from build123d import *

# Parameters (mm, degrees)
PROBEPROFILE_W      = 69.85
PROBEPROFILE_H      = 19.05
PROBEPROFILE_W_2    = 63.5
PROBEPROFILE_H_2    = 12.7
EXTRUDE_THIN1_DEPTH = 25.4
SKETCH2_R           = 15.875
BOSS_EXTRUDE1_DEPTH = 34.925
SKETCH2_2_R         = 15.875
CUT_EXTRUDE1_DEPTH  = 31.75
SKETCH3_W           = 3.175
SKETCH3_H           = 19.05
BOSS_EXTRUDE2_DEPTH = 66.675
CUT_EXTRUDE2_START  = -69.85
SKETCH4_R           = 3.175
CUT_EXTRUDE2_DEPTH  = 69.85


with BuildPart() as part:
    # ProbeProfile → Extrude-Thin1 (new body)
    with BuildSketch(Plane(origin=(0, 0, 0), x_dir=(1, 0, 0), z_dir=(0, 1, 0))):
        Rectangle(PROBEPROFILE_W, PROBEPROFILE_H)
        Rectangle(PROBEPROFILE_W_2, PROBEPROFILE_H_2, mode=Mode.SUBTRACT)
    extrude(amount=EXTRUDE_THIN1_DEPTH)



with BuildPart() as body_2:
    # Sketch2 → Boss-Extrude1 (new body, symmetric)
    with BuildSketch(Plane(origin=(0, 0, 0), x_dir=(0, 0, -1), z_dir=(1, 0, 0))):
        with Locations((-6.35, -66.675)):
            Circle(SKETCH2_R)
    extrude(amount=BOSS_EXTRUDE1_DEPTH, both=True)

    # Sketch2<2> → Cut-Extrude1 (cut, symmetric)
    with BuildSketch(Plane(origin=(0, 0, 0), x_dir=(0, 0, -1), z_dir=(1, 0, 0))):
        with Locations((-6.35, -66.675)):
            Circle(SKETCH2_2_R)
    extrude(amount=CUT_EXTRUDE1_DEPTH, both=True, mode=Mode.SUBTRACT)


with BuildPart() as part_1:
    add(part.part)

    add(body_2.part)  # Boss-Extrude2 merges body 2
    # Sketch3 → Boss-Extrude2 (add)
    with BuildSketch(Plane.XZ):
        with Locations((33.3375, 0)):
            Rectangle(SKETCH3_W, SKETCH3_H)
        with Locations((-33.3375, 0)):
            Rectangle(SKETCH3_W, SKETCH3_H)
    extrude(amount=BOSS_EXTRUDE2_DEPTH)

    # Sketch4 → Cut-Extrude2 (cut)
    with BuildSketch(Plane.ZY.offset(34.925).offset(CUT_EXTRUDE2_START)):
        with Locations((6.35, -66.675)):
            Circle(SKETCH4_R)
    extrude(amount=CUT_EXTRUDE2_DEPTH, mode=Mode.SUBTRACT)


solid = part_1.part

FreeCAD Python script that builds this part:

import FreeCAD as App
import Part
import Sketcher

V = App.Vector
Q = App.Units.Quantity

doc = App.newDocument("Part")
params = doc.addObject("Spreadsheet::Sheet", "Params")
for row, (alias, value) in enumerate([
    ("sketch1_width", "2.5 in"),
    ("sketch1_height", "0.5 in"),
    ("sketch1_width2", "2.75 in"),
    ("sketch1_height2", "0.75 in"),
    ("pad1_length", "1 in"),
    ("sketch2_diameter", "1.25 in"),
    ("pad2_length", "2.75 in"),
    ("sketch3_diameter", "1.25 in"),
    ("pocket1_length", "2.5 in"),
    ("sketch4_height", "0.75 in"),
    ("sketch4_width", "0.125 in"),
    ("pad3_length", "2.625 in"),
    ("sketch5_diameter", "0.25 in"),
    ("pocket2_length", "2.75 in"),
], start=1):
    params.set(f"A{row}", alias)
    params.set(f"B{row}", "=" + value)
    params.setAlias(f"B{row}", alias)

body = doc.addObject("PartDesign::Body", "Body")

# Sketch on XZ plane
sketch1 = body.newObject("Sketcher::SketchObject", "Sketch")
sketch1.AttachmentSupport = (doc.getObject("XZ_Plane"), [""])
sketch1.MapMode = "FlatFace"
sketch1.addGeometry(Part.LineSegment(V(-35, -10, 0), V(-35, 10, 0)), False)
sketch1.addGeometry(Part.LineSegment(V(-35, 10, 0), V(35, 10, 0)), False)
sketch1.addGeometry(Part.LineSegment(V(35, 10, 0), V(35, -10, 0)), False)
sketch1.addGeometry(Part.LineSegment(V(35, -10, 0), V(-35, -10, 0)), False)
sketch1.addGeometry(Part.LineSegment(V(32, 6, 0), V(-32, 6, 0)), False)
sketch1.addGeometry(Part.LineSegment(V(-32, 6, 0), V(-32, -6, 0)), False)
sketch1.addGeometry(Part.LineSegment(V(-32, -6, 0), V(32, -6, 0)), False)
sketch1.addGeometry(Part.LineSegment(V(32, -6, 0), V(32, 6, 0)), False)
sketch1.addConstraint(Sketcher.Constraint("Coincident", 0, 2, 1, 1))
sketch1.addConstraint(Sketcher.Constraint("Coincident", 1, 2, 2, 1))
sketch1.addConstraint(Sketcher.Constraint("Coincident", 2, 2, 3, 1))
sketch1.addConstraint(Sketcher.Constraint("Coincident", 3, 2, 0, 1))
sketch1.addConstraint(Sketcher.Constraint("Coincident", 4, 2, 5, 1))
sketch1.addConstraint(Sketcher.Constraint("Coincident", 5, 2, 6, 1))
sketch1.addConstraint(Sketcher.Constraint("Coincident", 6, 2, 7, 1))
sketch1.addConstraint(Sketcher.Constraint("Coincident", 7, 2, 4, 1))
sketch1.addConstraint(Sketcher.Constraint("Vertical", 0))
sketch1.addConstraint(Sketcher.Constraint("Horizontal", 1))
sketch1.addConstraint(Sketcher.Constraint("Vertical", 2))
sketch1.addConstraint(Sketcher.Constraint("Horizontal", 3))
sketch1.addConstraint(Sketcher.Constraint("Horizontal", 4))
sketch1.addConstraint(Sketcher.Constraint("Vertical", 5))
sketch1.addConstraint(Sketcher.Constraint("Horizontal", 6))
sketch1.addConstraint(Sketcher.Constraint("Vertical", 7))
sketch1.addConstraint(Sketcher.Constraint("Symmetric", 0, 2, 2, 2, -1, 1))
sketch1.addConstraint(Sketcher.Constraint("Symmetric", 4, 2, 6, 2, -1, 1))
sketch1.addConstraint(Sketcher.Constraint("DistanceX", 4, 2, 4, 1, Q("2.5 in")))
sketch1.addConstraint(Sketcher.Constraint("DistanceY", 5, 2, 5, 1, Q("0.5 in")))
sketch1.addConstraint(Sketcher.Constraint("DistanceX", 1, 1, 1, 2, Q("2.75 in")))
sketch1.addConstraint(Sketcher.Constraint("DistanceY", 0, 1, 0, 2, Q("0.75 in")))
sketch1.setExpression("Constraints[18]", "Params.sketch1_width")
sketch1.setExpression("Constraints[19]", "Params.sketch1_height")
sketch1.setExpression("Constraints[20]", "Params.sketch1_width2")
sketch1.setExpression("Constraints[21]", "Params.sketch1_height2")
pad1 = body.newObject("PartDesign::Pad", "Pad")
pad1.Profile = sketch1
pad1.setExpression("Length", "Params.pad1_length")
pad1.Reversed = True
body2 = doc.addObject("PartDesign::Body", "Body001")
body2.AllowCompound = True

# Sketch on YZ plane
sketch2 = body2.newObject("Sketcher::SketchObject", "Sketch001")
sketch2.AttachmentSupport = (doc.getObject("YZ_Plane001"), [""])
sketch2.MapMode = "FlatFace"
sketch2.addGeometry(Part.Circle(V(-67, 6, 0), V(0, 0, 1), 16), False)
sketch2.addConstraint(Sketcher.Constraint("Diameter", 0, Q("1.25 in")))
sketch2.addConstraint(Sketcher.Constraint("DistanceY", -1, 1, 0, 3, Q("0.25 in")))
sketch2.addConstraint(Sketcher.Constraint("DistanceX", 0, 3, -1, 1, Q("2.625 in")))
sketch2.setExpression("Constraints[0]", "Params.sketch2_diameter")
pad2 = body2.newObject("PartDesign::Pad", "Pad001")
pad2.Profile = sketch2
pad2.setExpression("Length", "Params.pad2_length")
pad2.Midplane = True

# Sketch on YZ plane
sketch3 = body2.newObject("Sketcher::SketchObject", "Sketch002")
sketch3.AttachmentSupport = (doc.getObject("YZ_Plane001"), [""])
sketch3.MapMode = "FlatFace"
sketch3.addGeometry(Part.Circle(V(-67, 6, 0), V(0, 0, 1), 16), False)
sketch3.addConstraint(Sketcher.Constraint("Diameter", 0, Q("1.25 in")))
sketch3.addConstraint(Sketcher.Constraint("DistanceY", -1, 1, 0, 3, Q("0.25 in")))
sketch3.addConstraint(Sketcher.Constraint("DistanceX", 0, 3, -1, 1, Q("2.625 in")))
sketch3.setExpression("Constraints[0]", "Params.sketch3_diameter")
pocket1 = body2.newObject("PartDesign::Pocket", "Pocket")
pocket1.Profile = sketch3
pocket1.setExpression("Length", "Params.pocket1_length")
pocket1.Midplane = True
body.AllowCompound = True
doc.recompute()

boolean = body.newObject("PartDesign::Boolean", "Boolean")
boolean.Type = "Fuse"
boolean.addObjects([body2])

# Sketch on XZ plane
sketch4 = body.newObject("Sketcher::SketchObject", "Sketch003")
sketch4.AttachmentSupport = (doc.getObject("XZ_Plane"), [""])
sketch4.MapMode = "FlatFace"
sketch4.addGeometry(Part.LineSegment(V(31.8, 9.5, 0), V(31.8, -9.5, 0)), False)
sketch4.addGeometry(Part.LineSegment(V(31.8, -9.5, 0), V(34.9, -9.5, 0)), False)
sketch4.addGeometry(Part.LineSegment(V(34.9, -9.5, 0), V(34.9, 9.5, 0)), False)
sketch4.addGeometry(Part.LineSegment(V(34.9, 9.5, 0), V(31.8, 9.5, 0)), False)
sketch4.addGeometry(Part.LineSegment(V(-34.9, 9.5, 0), V(-34.9, -9.5, 0)), False)
sketch4.addGeometry(Part.LineSegment(V(-34.9, -9.5, 0), V(-31.8, -9.5, 0)), False)
sketch4.addGeometry(Part.LineSegment(V(-31.8, -9.5, 0), V(-31.8, 9.5, 0)), False)
sketch4.addGeometry(Part.LineSegment(V(-31.8, 9.5, 0), V(-34.9, 9.5, 0)), False)
sketch4.addConstraint(Sketcher.Constraint("Coincident", 0, 2, 1, 1))
sketch4.addConstraint(Sketcher.Constraint("Coincident", 1, 2, 2, 1))
sketch4.addConstraint(Sketcher.Constraint("Coincident", 2, 2, 3, 1))
sketch4.addConstraint(Sketcher.Constraint("Coincident", 3, 2, 0, 1))
sketch4.addConstraint(Sketcher.Constraint("Coincident", 4, 2, 5, 1))
sketch4.addConstraint(Sketcher.Constraint("Coincident", 5, 2, 6, 1))
sketch4.addConstraint(Sketcher.Constraint("Coincident", 6, 2, 7, 1))
sketch4.addConstraint(Sketcher.Constraint("Coincident", 7, 2, 4, 1))
sketch4.addConstraint(Sketcher.Constraint("Vertical", 0))
sketch4.addConstraint(Sketcher.Constraint("Horizontal", 1))
sketch4.addConstraint(Sketcher.Constraint("Vertical", 2))
sketch4.addConstraint(Sketcher.Constraint("Horizontal", 3))
sketch4.addConstraint(Sketcher.Constraint("Vertical", 4))
sketch4.addConstraint(Sketcher.Constraint("Horizontal", 5))
sketch4.addConstraint(Sketcher.Constraint("Vertical", 6))
sketch4.addConstraint(Sketcher.Constraint("Horizontal", 7))
sketch4.addConstraint(Sketcher.Constraint("Symmetric", 2, 2, 4, 2, -1, 1))
sketch4.addConstraint(Sketcher.Constraint("Symmetric", 0, 2, 6, 2, -1, 1))
sketch4.addConstraint(Sketcher.Constraint("Horizontal", 1, 2, 4, 2))
sketch4.addConstraint(Sketcher.Constraint("DistanceY", 0, 2, 0, 1, Q("0.75 in")))
sketch4.addConstraint(Sketcher.Constraint("DistanceX", 5, 2, 0, 2, Q("2.5 in")))
sketch4.addConstraint(Sketcher.Constraint("DistanceX", 1, 1, 1, 2, Q("0.125 in")))
sketch4.setExpression("Constraints[19]", "Params.sketch4_height")
sketch4.setExpression("Constraints[21]", "Params.sketch4_width")
pad3 = body.newObject("PartDesign::Pad", "Pad002")
pad3.Profile = sketch4
pad3.setExpression("Length", "Params.pad3_length")

# Sketch on YZ plane
sketch5 = body.newObject("Sketcher::SketchObject", "Sketch004")
sketch5.AttachmentSupport = (doc.getObject("YZ_Plane"), [""])
sketch5.MapMode = "FlatFace"
sketch5.AttachmentOffset = App.Placement(V(0, 0, 1.375 * 25.4), App.Rotation())
sketch5.addGeometry(Part.Circle(V(-66.7, 6.3, 0), V(0, 0, 1), 3.2), False)
sketch5.addConstraint(Sketcher.Constraint("Diameter", 0, Q("0.25 in")))
sketch5.addConstraint(Sketcher.Constraint("DistanceY", -1, 1, 0, 3, Q("0.25 in")))
sketch5.addConstraint(Sketcher.Constraint("DistanceX", 0, 3, -1, 1, Q("2.625 in")))
sketch5.setExpression("Constraints[0]", "Params.sketch5_diameter")
pocket2 = body.newObject("PartDesign::Pocket", "Pocket001")
pocket2.Profile = sketch5
pocket2.setExpression("Length", "Params.pocket2_length")

doc.recompute()
